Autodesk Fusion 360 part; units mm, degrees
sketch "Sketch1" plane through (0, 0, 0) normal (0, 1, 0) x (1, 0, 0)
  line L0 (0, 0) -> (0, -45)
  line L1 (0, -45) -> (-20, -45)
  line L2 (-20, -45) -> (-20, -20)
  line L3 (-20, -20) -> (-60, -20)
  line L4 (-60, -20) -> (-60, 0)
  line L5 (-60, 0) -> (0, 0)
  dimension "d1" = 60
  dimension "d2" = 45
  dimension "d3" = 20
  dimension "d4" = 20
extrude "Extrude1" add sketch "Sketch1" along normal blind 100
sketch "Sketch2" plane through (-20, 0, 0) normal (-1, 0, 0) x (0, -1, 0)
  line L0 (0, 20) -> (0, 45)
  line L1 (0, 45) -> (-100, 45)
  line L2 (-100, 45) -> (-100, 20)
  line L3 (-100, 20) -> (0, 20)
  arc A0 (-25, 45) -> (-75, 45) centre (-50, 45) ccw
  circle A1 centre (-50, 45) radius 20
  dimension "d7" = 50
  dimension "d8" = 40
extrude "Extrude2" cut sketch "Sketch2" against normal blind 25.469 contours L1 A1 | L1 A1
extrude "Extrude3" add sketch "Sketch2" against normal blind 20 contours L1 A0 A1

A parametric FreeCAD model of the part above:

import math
import FreeCAD as App
import Part
import Sketcher

doc = App.newDocument("Part")
params = doc.addObject("Spreadsheet::Sheet", "Params")
for row, (alias, value) in enumerate([
    ("sketch1_width", "60 mm"),
    ("sketch1_width2", "20 mm"),
    ("sketch1_height", "45 mm"),
    ("pad1_length", "100 mm"),
    ("sketch2_diameter", "40 mm"),
    ("pocket1_length", "25.469 mm"),
    ("sketch3_radius", "25 mm"),
    ("sketch3_radius2", "20 mm"),
    ("pad2_length", "20 mm"),
], start=1):
    params.set(f"A{row}", alias)
    params.set(f"B{row}", "=" + value)
    params.setAlias(f"B{row}", alias)

body = doc.addObject("PartDesign::Body", "Body")

sketch1 = body.newObject("Sketcher::SketchObject", "Sketch")
sketch1.AttachmentSupport = (doc.getObject("XZ_Plane"), [""])
sketch1.MapMode = "FlatFace"
sketch1.addGeometry([
    Part.LineSegment(App.Vector(0, 45, 0), App.Vector(0, 0, 0)),
    Part.LineSegment(App.Vector(0, 0, 0), App.Vector(-60, 0, 0)),
    Part.LineSegment(App.Vector(-60, 0, 0), App.Vector(-60, 20, 0)),
    Part.LineSegment(App.Vector(-60, 20, 0), App.Vector(-20, 20, 0)),
    Part.LineSegment(App.Vector(-20, 20, 0), App.Vector(-20, 45, 0)),
    Part.LineSegment(App.Vector(-20, 45, 0), App.Vector(0, 45, 0)),
], False)
sketch1.addConstraint([
    Sketcher.Constraint("Coincident", 0, 2, 1, 1),
    Sketcher.Constraint("Coincident", 1, 2, 2, 1),
    Sketcher.Constraint("Coincident", 2, 2, 3, 1),
    Sketcher.Constraint("Coincident", 3, 2, 4, 1),
    Sketcher.Constraint("Coincident", 4, 2, 5, 1),
    Sketcher.Constraint("Coincident", 5, 2, 0, 1),
    Sketcher.Constraint("Vertical", 0),
    Sketcher.Constraint("Horizontal", 1),
    Sketcher.Constraint("Vertical", 2),
    Sketcher.Constraint("Horizontal", 3),
    Sketcher.Constraint("Vertical", 4),
    Sketcher.Constraint("Horizontal", 5),
    Sketcher.Constraint("Coincident", 0, 2, -1, 1),
    Sketcher.Constraint("Equal", 5, 2),
    Sketcher.Constraint("DistanceX", 1, 2, 1, 1, 60.0),
    Sketcher.Constraint("DistanceX", 5, 1, 5, 2, 20.0),
    Sketcher.Constraint("DistanceY", 0, 2, 0, 1, 45.0),
])
sketch1.setExpression("Constraints[14]", "Params.sketch1_width")
sketch1.setExpression("Constraints[15]", "Params.sketch1_width2")
sketch1.setExpression("Constraints[16]", "Params.sketch1_height")
pad1 = body.newObject("PartDesign::Pad", "Pad")
pad1.Profile = sketch1
pad1.setExpression("Length", "Params.pad1_length")
pad1.Reversed = True

sketch2 = body.newObject("Sketcher::SketchObject", "Sketch001")
sketch2.AttachmentSupport = (doc.getObject("YZ_Plane"), [""])
sketch2.MapMode = "FlatFace"
sketch2.AttachmentOffset = App.Placement(App.Vector(0, 0, -20), App.Rotation())
sketch2.addGeometry(Part.Circle(App.Vector(50, 45, 0), App.Vector(0, 0, 1), 20), False)
sketch2.addConstraint([
    Sketcher.Constraint("Diameter", 0, 40.0),
    Sketcher.Constraint("DistanceX", -1, 1, 0, 3, 50.0),
    Sketcher.Constraint("DistanceY", -1, 1, 0, 3, 45.0),
])
sketch2.setExpression("Constraints[0]", "Params.sketch2_diameter")
pocket1 = body.newObject("PartDesign::Pocket", "Pocket")
pocket1.Profile = sketch2
pocket1.setExpression("Length", "Params.pocket1_length")
pocket1.Reversed = True

sketch3 = body.newObject("Sketcher::SketchObject", "Sketch002")
sketch3.AttachmentSupport = (doc.getObject("YZ_Plane"), [""])
sketch3.MapMode = "FlatFace"
sketch3.AttachmentOffset = App.Placement(App.Vector(0, 0, -20), App.Rotation())
sketch3.addGeometry([
    Part.LineSegment(App.Vector(30, 45, 0), App.Vector(25, 45, 0)),
    Part.ArcOfCircle(Part.Circle(App.Vector(50, 45, 0), App.Vector(0, 0, 1), 25), math.radians(0), math.radians(180)),
    Part.LineSegment(App.Vector(75, 45, 0), App.Vector(70, 45, 0)),
    Part.ArcOfCircle(Part.Circle(App.Vector(50, 45, 0), App.Vector(0, 0, 1), 20), math.radians(0), math.radians(180)),
], False)
sketch3.addConstraint([
    Sketcher.Constraint("Coincident", 0, 2, 1, 2),
    Sketcher.Constraint("Coincident", 1, 1, 2, 1),
    Sketcher.Constraint("Coincident", 2, 2, 3, 1),
    Sketcher.Constraint("Coincident", 3, 2, 0, 1),
    Sketcher.Constraint("Horizontal", 0),
    Sketcher.Constraint("Horizontal", 2),
    Sketcher.Constraint("Coincident", 3, 3, 1, 3),
    Sketcher.Constraint("Horizontal", 3, 3, 0, 2),
    Sketcher.Constraint("Horizontal", 0, 2, 1, 1),
    Sketcher.Constraint("Radius", 1, 25.0),
    Sketcher.Constraint("Radius", 3, 20.0),
    Sketcher.Constraint("DistanceX", -1, 1, 1, 3, 50.0),
    Sketcher.Constraint("DistanceY", -1, 1, 1, 3, 45.0),
])
sketch3.setExpression("Constraints[9]", "Params.sketch3_radius")
sketch3.setExpression("Constraints[10]", "Params.sketch3_radius2")
pad2 = body.newObject("PartDesign::Pad", "Pad001")
pad2.Profile = sketch3
pad2.setExpression("Length", "Params.pad2_length")

doc.recompute()
